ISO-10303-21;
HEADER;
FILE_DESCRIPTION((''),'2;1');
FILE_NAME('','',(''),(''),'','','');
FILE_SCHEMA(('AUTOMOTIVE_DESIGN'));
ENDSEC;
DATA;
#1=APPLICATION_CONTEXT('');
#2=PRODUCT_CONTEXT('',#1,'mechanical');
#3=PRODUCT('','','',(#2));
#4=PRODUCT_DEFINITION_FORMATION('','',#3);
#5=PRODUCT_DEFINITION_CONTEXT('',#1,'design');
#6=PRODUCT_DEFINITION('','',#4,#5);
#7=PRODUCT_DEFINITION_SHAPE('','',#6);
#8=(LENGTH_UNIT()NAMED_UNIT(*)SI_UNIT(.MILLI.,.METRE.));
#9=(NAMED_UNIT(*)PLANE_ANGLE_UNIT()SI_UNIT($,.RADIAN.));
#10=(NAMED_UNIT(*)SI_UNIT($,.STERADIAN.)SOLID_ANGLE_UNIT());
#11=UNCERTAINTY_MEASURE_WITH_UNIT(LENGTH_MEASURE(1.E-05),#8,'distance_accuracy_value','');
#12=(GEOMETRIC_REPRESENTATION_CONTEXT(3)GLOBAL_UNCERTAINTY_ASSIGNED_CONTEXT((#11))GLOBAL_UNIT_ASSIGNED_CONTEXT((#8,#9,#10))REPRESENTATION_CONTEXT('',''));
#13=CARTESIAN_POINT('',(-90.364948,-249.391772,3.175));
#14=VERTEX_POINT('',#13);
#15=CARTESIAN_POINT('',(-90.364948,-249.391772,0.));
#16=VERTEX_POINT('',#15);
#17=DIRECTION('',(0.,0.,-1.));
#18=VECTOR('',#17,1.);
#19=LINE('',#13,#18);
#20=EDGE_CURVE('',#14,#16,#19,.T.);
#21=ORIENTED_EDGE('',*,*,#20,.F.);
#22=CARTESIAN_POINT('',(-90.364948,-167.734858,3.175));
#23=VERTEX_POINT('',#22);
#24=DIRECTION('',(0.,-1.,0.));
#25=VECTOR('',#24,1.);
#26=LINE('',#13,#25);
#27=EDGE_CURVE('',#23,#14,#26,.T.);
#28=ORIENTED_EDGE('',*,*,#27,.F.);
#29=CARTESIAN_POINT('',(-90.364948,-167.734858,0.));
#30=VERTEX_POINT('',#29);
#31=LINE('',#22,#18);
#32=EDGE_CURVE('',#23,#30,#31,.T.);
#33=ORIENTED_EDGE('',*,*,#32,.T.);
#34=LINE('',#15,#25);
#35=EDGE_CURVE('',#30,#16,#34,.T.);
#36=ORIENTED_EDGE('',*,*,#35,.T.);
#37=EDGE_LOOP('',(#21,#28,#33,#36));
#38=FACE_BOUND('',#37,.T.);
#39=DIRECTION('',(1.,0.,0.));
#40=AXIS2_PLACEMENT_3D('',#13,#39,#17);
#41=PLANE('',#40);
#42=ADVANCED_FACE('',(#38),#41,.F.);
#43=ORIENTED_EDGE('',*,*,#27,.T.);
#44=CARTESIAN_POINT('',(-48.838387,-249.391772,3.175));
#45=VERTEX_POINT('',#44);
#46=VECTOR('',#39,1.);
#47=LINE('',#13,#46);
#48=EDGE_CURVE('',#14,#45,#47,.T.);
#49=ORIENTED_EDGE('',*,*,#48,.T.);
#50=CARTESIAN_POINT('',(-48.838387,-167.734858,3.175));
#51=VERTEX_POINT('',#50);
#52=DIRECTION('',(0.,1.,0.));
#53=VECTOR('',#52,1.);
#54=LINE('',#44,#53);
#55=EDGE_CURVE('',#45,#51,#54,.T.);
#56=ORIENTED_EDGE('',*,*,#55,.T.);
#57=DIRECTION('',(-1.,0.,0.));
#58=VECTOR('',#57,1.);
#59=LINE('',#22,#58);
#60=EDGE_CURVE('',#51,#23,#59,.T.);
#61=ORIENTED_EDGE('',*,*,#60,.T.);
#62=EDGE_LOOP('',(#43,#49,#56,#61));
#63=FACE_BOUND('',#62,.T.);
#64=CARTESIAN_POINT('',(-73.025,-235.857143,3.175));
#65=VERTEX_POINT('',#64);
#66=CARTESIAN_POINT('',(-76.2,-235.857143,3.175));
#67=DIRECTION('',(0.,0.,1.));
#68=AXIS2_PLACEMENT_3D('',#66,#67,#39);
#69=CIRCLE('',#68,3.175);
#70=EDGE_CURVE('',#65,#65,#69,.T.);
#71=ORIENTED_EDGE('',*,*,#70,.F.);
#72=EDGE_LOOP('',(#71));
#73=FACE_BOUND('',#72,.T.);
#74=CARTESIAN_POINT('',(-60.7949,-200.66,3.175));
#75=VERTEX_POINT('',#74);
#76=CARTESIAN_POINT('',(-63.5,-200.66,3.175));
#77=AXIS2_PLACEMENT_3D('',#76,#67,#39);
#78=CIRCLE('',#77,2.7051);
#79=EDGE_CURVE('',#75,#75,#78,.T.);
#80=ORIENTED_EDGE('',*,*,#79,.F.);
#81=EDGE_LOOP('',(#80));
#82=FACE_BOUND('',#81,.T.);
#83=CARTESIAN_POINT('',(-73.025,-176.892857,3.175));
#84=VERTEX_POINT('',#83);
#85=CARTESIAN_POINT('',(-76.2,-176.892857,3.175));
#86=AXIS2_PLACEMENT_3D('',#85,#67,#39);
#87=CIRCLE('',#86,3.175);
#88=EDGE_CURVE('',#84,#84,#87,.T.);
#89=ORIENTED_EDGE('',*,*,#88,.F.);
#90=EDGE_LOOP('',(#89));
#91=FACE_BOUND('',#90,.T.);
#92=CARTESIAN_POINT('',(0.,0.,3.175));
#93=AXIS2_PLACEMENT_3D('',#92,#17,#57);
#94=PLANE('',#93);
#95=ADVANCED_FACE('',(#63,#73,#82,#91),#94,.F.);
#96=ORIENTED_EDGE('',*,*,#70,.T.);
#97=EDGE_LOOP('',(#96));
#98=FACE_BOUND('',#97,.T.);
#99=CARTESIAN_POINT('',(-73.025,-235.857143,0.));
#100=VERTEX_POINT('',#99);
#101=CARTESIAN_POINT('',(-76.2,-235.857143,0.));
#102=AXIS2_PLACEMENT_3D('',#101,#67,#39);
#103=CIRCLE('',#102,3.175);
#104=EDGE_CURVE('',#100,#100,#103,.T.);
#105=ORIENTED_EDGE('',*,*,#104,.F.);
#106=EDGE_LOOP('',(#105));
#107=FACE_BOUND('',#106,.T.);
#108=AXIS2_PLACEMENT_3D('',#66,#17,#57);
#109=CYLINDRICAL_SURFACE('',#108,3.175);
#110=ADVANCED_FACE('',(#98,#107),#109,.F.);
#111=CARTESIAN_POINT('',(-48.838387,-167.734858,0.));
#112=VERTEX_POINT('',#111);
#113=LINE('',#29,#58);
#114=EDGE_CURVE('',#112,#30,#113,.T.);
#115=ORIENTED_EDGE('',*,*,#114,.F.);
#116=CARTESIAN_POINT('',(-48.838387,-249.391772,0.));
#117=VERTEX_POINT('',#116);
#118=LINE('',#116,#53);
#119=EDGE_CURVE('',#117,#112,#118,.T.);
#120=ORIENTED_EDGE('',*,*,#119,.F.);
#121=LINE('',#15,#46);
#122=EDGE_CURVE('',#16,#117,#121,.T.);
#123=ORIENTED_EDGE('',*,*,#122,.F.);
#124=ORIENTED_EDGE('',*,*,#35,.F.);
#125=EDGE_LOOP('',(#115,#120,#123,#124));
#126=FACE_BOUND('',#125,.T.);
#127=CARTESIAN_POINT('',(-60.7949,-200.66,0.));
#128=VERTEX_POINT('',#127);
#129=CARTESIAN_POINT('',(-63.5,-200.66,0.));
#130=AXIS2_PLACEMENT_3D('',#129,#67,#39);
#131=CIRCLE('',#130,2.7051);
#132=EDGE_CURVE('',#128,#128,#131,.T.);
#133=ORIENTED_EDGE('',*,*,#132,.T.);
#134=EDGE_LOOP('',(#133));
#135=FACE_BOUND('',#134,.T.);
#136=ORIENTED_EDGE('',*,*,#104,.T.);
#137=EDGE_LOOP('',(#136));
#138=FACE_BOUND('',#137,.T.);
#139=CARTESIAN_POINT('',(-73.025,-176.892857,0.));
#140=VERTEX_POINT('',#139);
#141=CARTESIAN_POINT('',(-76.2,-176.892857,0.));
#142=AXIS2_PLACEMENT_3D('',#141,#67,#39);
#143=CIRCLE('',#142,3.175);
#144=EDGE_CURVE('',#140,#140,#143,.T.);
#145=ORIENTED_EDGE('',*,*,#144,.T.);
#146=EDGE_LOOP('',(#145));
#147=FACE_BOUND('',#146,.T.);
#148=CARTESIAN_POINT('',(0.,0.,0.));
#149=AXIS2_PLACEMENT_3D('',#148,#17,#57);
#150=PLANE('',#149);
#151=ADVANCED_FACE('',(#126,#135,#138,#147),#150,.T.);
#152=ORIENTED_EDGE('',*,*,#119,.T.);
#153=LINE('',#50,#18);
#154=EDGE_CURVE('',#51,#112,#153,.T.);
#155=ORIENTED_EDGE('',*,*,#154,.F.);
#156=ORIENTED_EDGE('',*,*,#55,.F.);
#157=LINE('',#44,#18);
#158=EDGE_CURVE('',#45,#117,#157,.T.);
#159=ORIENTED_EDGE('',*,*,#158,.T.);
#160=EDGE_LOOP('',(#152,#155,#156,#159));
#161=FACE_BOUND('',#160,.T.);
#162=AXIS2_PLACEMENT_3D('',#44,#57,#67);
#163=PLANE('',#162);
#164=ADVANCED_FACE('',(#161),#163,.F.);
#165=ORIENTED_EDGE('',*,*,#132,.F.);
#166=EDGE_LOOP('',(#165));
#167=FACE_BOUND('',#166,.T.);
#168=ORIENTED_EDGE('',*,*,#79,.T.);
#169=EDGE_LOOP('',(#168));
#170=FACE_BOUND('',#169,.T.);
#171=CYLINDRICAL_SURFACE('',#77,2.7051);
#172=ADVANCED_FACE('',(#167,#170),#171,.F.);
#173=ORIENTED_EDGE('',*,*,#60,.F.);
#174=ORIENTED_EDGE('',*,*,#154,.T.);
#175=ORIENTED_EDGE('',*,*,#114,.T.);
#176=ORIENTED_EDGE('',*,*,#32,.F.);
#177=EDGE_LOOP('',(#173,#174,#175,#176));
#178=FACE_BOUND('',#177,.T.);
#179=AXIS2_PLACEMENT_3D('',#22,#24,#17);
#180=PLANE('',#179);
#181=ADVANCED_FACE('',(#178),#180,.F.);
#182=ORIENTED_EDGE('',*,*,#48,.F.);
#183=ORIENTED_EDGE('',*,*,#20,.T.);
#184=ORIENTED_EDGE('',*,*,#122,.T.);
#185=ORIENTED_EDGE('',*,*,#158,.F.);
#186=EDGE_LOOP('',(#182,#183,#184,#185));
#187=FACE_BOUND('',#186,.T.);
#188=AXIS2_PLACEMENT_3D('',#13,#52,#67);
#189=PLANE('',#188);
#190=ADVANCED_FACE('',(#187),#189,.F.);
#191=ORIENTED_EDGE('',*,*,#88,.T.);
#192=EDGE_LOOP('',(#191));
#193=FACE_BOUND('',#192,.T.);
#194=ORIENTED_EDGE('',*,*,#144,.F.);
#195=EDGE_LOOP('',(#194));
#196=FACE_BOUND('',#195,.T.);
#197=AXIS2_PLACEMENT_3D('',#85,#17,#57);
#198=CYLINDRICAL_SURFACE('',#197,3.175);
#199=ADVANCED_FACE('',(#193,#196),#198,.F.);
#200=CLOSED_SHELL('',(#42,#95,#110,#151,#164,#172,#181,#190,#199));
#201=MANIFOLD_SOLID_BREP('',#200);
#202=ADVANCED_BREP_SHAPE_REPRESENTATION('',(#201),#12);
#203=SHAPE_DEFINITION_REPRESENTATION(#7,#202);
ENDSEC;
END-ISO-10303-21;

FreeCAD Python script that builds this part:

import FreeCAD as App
import Part
import Sketcher
Q = App.Units.Quantity


def add_polygon(sketch, points):
    """Adds a closed chain of lines whose ends are joined by coincident constraints."""
    first, n = sketch.GeometryCount, len(points)
    for a, b in zip(points, points[1:] + points[:1]):
        sketch.addGeometry(Part.LineSegment(App.Vector(*a, 0), App.Vector(*b, 0)), False)
    for i in range(n):
        sketch.addConstraint(Sketcher.Constraint("Coincident", first + i, 2, first + (i + 1) % n, 1))

doc = App.newDocument("Part")
body = doc.addObject("PartDesign::Body", "Body")

sketch1 = body.newObject("Sketcher::SketchObject", "Sketch")
sketch1.AttachmentSupport = (doc.getObject("XY_Plane"), [""])
sketch1.MapMode = "FlatFace"
add_polygon(sketch1, [(-90.4, -167.7), (-90.4, -249.4), (-48.8, -249.4), (-48.8, -167.7)])
sketch1.addGeometry(Part.Circle(App.Vector(-76.2, -235.9, 0), App.Vector(0, 0, 1), 3.2), False)
sketch1.addGeometry(Part.Circle(App.Vector(-76.2, -176.9, 0), App.Vector(0, 0, 1), 3.2), False)
sketch1.addConstraint(Sketcher.Constraint("Vertical", 0))
sketch1.addConstraint(Sketcher.Constraint("Horizontal", 1))
sketch1.addConstraint(Sketcher.Constraint("Vertical", 2))
sketch1.addConstraint(Sketcher.Constraint("Horizontal", 3))
sketch1.addConstraint(Sketcher.Constraint("Equal", 4, 5))
sketch1.addConstraint(Sketcher.Constraint("Vertical", 4, 3, 5, 3))
sketch1.addConstraint(Sketcher.Constraint("Diameter", 4, Q("0.25 in")))
sketch1.addConstraint(Sketcher.Constraint("DistanceX", 4, 3, -1, 1, Q("3 in")))
sketch1.addConstraint(Sketcher.Constraint("DistanceX", 1, 1, 1, 2, Q("41.526561 mm")))
sketch1.addConstraint(Sketcher.Constraint("DistanceY", 5, 3, 2, 2, Q("9.158 mm")))
sketch1.addConstraint(Sketcher.Constraint("DistanceY", 0, 2, 0, 1, Q("81.656914 mm")))
sketch1.addConstraint(Sketcher.Constraint("DistanceX", 0, 2, -1, 1, Q("90.364948 mm")))
sketch1.addConstraint(Sketcher.Constraint("DistanceY", 0, 2, -1, 1, Q("249.391772 mm")))
sketch1.addConstraint(Sketcher.Constraint("DistanceY", 0, 2, 4, 3, Q("13.534629 mm")))
pad1 = body.newObject("PartDesign::Pad", "Pad")
pad1.Profile = sketch1
pad1.Length = Q("0.125 in")

sketch2 = body.newObject("Sketcher::SketchObject", "Sketch001")
sketch2.AttachmentSupport = (doc.getObject("XY_Plane"), [""])
sketch2.MapMode = "FlatFace"
sketch2.AttachmentOffset = App.Placement(App.Vector(0, 0, 0.125 * 25.4), App.Rotation())
sketch2.addGeometry(Part.Circle(App.Vector(-63.5, -200.7, 0), App.Vector(0, 0, 1), 2.7), False)
sketch2.addConstraint(Sketcher.Constraint("Diameter", 0, Q("0.213 in")))
sketch2.addConstraint(Sketcher.Constraint("DistanceX", 0, 3, -1, 1, Q("2.5 in")))
sketch2.addConstraint(Sketcher.Constraint("DistanceY", 0, 3, -1, 1, Q("7.9 in")))
doc.recompute()
hole = body.newObject("PartDesign::Hole", "Hole")
hole.Profile = sketch2
hole.ThreadType = "None"
hole.Diameter = Q("0.213 in")
hole.DepthType = "ThroughAll"

doc.recompute()
